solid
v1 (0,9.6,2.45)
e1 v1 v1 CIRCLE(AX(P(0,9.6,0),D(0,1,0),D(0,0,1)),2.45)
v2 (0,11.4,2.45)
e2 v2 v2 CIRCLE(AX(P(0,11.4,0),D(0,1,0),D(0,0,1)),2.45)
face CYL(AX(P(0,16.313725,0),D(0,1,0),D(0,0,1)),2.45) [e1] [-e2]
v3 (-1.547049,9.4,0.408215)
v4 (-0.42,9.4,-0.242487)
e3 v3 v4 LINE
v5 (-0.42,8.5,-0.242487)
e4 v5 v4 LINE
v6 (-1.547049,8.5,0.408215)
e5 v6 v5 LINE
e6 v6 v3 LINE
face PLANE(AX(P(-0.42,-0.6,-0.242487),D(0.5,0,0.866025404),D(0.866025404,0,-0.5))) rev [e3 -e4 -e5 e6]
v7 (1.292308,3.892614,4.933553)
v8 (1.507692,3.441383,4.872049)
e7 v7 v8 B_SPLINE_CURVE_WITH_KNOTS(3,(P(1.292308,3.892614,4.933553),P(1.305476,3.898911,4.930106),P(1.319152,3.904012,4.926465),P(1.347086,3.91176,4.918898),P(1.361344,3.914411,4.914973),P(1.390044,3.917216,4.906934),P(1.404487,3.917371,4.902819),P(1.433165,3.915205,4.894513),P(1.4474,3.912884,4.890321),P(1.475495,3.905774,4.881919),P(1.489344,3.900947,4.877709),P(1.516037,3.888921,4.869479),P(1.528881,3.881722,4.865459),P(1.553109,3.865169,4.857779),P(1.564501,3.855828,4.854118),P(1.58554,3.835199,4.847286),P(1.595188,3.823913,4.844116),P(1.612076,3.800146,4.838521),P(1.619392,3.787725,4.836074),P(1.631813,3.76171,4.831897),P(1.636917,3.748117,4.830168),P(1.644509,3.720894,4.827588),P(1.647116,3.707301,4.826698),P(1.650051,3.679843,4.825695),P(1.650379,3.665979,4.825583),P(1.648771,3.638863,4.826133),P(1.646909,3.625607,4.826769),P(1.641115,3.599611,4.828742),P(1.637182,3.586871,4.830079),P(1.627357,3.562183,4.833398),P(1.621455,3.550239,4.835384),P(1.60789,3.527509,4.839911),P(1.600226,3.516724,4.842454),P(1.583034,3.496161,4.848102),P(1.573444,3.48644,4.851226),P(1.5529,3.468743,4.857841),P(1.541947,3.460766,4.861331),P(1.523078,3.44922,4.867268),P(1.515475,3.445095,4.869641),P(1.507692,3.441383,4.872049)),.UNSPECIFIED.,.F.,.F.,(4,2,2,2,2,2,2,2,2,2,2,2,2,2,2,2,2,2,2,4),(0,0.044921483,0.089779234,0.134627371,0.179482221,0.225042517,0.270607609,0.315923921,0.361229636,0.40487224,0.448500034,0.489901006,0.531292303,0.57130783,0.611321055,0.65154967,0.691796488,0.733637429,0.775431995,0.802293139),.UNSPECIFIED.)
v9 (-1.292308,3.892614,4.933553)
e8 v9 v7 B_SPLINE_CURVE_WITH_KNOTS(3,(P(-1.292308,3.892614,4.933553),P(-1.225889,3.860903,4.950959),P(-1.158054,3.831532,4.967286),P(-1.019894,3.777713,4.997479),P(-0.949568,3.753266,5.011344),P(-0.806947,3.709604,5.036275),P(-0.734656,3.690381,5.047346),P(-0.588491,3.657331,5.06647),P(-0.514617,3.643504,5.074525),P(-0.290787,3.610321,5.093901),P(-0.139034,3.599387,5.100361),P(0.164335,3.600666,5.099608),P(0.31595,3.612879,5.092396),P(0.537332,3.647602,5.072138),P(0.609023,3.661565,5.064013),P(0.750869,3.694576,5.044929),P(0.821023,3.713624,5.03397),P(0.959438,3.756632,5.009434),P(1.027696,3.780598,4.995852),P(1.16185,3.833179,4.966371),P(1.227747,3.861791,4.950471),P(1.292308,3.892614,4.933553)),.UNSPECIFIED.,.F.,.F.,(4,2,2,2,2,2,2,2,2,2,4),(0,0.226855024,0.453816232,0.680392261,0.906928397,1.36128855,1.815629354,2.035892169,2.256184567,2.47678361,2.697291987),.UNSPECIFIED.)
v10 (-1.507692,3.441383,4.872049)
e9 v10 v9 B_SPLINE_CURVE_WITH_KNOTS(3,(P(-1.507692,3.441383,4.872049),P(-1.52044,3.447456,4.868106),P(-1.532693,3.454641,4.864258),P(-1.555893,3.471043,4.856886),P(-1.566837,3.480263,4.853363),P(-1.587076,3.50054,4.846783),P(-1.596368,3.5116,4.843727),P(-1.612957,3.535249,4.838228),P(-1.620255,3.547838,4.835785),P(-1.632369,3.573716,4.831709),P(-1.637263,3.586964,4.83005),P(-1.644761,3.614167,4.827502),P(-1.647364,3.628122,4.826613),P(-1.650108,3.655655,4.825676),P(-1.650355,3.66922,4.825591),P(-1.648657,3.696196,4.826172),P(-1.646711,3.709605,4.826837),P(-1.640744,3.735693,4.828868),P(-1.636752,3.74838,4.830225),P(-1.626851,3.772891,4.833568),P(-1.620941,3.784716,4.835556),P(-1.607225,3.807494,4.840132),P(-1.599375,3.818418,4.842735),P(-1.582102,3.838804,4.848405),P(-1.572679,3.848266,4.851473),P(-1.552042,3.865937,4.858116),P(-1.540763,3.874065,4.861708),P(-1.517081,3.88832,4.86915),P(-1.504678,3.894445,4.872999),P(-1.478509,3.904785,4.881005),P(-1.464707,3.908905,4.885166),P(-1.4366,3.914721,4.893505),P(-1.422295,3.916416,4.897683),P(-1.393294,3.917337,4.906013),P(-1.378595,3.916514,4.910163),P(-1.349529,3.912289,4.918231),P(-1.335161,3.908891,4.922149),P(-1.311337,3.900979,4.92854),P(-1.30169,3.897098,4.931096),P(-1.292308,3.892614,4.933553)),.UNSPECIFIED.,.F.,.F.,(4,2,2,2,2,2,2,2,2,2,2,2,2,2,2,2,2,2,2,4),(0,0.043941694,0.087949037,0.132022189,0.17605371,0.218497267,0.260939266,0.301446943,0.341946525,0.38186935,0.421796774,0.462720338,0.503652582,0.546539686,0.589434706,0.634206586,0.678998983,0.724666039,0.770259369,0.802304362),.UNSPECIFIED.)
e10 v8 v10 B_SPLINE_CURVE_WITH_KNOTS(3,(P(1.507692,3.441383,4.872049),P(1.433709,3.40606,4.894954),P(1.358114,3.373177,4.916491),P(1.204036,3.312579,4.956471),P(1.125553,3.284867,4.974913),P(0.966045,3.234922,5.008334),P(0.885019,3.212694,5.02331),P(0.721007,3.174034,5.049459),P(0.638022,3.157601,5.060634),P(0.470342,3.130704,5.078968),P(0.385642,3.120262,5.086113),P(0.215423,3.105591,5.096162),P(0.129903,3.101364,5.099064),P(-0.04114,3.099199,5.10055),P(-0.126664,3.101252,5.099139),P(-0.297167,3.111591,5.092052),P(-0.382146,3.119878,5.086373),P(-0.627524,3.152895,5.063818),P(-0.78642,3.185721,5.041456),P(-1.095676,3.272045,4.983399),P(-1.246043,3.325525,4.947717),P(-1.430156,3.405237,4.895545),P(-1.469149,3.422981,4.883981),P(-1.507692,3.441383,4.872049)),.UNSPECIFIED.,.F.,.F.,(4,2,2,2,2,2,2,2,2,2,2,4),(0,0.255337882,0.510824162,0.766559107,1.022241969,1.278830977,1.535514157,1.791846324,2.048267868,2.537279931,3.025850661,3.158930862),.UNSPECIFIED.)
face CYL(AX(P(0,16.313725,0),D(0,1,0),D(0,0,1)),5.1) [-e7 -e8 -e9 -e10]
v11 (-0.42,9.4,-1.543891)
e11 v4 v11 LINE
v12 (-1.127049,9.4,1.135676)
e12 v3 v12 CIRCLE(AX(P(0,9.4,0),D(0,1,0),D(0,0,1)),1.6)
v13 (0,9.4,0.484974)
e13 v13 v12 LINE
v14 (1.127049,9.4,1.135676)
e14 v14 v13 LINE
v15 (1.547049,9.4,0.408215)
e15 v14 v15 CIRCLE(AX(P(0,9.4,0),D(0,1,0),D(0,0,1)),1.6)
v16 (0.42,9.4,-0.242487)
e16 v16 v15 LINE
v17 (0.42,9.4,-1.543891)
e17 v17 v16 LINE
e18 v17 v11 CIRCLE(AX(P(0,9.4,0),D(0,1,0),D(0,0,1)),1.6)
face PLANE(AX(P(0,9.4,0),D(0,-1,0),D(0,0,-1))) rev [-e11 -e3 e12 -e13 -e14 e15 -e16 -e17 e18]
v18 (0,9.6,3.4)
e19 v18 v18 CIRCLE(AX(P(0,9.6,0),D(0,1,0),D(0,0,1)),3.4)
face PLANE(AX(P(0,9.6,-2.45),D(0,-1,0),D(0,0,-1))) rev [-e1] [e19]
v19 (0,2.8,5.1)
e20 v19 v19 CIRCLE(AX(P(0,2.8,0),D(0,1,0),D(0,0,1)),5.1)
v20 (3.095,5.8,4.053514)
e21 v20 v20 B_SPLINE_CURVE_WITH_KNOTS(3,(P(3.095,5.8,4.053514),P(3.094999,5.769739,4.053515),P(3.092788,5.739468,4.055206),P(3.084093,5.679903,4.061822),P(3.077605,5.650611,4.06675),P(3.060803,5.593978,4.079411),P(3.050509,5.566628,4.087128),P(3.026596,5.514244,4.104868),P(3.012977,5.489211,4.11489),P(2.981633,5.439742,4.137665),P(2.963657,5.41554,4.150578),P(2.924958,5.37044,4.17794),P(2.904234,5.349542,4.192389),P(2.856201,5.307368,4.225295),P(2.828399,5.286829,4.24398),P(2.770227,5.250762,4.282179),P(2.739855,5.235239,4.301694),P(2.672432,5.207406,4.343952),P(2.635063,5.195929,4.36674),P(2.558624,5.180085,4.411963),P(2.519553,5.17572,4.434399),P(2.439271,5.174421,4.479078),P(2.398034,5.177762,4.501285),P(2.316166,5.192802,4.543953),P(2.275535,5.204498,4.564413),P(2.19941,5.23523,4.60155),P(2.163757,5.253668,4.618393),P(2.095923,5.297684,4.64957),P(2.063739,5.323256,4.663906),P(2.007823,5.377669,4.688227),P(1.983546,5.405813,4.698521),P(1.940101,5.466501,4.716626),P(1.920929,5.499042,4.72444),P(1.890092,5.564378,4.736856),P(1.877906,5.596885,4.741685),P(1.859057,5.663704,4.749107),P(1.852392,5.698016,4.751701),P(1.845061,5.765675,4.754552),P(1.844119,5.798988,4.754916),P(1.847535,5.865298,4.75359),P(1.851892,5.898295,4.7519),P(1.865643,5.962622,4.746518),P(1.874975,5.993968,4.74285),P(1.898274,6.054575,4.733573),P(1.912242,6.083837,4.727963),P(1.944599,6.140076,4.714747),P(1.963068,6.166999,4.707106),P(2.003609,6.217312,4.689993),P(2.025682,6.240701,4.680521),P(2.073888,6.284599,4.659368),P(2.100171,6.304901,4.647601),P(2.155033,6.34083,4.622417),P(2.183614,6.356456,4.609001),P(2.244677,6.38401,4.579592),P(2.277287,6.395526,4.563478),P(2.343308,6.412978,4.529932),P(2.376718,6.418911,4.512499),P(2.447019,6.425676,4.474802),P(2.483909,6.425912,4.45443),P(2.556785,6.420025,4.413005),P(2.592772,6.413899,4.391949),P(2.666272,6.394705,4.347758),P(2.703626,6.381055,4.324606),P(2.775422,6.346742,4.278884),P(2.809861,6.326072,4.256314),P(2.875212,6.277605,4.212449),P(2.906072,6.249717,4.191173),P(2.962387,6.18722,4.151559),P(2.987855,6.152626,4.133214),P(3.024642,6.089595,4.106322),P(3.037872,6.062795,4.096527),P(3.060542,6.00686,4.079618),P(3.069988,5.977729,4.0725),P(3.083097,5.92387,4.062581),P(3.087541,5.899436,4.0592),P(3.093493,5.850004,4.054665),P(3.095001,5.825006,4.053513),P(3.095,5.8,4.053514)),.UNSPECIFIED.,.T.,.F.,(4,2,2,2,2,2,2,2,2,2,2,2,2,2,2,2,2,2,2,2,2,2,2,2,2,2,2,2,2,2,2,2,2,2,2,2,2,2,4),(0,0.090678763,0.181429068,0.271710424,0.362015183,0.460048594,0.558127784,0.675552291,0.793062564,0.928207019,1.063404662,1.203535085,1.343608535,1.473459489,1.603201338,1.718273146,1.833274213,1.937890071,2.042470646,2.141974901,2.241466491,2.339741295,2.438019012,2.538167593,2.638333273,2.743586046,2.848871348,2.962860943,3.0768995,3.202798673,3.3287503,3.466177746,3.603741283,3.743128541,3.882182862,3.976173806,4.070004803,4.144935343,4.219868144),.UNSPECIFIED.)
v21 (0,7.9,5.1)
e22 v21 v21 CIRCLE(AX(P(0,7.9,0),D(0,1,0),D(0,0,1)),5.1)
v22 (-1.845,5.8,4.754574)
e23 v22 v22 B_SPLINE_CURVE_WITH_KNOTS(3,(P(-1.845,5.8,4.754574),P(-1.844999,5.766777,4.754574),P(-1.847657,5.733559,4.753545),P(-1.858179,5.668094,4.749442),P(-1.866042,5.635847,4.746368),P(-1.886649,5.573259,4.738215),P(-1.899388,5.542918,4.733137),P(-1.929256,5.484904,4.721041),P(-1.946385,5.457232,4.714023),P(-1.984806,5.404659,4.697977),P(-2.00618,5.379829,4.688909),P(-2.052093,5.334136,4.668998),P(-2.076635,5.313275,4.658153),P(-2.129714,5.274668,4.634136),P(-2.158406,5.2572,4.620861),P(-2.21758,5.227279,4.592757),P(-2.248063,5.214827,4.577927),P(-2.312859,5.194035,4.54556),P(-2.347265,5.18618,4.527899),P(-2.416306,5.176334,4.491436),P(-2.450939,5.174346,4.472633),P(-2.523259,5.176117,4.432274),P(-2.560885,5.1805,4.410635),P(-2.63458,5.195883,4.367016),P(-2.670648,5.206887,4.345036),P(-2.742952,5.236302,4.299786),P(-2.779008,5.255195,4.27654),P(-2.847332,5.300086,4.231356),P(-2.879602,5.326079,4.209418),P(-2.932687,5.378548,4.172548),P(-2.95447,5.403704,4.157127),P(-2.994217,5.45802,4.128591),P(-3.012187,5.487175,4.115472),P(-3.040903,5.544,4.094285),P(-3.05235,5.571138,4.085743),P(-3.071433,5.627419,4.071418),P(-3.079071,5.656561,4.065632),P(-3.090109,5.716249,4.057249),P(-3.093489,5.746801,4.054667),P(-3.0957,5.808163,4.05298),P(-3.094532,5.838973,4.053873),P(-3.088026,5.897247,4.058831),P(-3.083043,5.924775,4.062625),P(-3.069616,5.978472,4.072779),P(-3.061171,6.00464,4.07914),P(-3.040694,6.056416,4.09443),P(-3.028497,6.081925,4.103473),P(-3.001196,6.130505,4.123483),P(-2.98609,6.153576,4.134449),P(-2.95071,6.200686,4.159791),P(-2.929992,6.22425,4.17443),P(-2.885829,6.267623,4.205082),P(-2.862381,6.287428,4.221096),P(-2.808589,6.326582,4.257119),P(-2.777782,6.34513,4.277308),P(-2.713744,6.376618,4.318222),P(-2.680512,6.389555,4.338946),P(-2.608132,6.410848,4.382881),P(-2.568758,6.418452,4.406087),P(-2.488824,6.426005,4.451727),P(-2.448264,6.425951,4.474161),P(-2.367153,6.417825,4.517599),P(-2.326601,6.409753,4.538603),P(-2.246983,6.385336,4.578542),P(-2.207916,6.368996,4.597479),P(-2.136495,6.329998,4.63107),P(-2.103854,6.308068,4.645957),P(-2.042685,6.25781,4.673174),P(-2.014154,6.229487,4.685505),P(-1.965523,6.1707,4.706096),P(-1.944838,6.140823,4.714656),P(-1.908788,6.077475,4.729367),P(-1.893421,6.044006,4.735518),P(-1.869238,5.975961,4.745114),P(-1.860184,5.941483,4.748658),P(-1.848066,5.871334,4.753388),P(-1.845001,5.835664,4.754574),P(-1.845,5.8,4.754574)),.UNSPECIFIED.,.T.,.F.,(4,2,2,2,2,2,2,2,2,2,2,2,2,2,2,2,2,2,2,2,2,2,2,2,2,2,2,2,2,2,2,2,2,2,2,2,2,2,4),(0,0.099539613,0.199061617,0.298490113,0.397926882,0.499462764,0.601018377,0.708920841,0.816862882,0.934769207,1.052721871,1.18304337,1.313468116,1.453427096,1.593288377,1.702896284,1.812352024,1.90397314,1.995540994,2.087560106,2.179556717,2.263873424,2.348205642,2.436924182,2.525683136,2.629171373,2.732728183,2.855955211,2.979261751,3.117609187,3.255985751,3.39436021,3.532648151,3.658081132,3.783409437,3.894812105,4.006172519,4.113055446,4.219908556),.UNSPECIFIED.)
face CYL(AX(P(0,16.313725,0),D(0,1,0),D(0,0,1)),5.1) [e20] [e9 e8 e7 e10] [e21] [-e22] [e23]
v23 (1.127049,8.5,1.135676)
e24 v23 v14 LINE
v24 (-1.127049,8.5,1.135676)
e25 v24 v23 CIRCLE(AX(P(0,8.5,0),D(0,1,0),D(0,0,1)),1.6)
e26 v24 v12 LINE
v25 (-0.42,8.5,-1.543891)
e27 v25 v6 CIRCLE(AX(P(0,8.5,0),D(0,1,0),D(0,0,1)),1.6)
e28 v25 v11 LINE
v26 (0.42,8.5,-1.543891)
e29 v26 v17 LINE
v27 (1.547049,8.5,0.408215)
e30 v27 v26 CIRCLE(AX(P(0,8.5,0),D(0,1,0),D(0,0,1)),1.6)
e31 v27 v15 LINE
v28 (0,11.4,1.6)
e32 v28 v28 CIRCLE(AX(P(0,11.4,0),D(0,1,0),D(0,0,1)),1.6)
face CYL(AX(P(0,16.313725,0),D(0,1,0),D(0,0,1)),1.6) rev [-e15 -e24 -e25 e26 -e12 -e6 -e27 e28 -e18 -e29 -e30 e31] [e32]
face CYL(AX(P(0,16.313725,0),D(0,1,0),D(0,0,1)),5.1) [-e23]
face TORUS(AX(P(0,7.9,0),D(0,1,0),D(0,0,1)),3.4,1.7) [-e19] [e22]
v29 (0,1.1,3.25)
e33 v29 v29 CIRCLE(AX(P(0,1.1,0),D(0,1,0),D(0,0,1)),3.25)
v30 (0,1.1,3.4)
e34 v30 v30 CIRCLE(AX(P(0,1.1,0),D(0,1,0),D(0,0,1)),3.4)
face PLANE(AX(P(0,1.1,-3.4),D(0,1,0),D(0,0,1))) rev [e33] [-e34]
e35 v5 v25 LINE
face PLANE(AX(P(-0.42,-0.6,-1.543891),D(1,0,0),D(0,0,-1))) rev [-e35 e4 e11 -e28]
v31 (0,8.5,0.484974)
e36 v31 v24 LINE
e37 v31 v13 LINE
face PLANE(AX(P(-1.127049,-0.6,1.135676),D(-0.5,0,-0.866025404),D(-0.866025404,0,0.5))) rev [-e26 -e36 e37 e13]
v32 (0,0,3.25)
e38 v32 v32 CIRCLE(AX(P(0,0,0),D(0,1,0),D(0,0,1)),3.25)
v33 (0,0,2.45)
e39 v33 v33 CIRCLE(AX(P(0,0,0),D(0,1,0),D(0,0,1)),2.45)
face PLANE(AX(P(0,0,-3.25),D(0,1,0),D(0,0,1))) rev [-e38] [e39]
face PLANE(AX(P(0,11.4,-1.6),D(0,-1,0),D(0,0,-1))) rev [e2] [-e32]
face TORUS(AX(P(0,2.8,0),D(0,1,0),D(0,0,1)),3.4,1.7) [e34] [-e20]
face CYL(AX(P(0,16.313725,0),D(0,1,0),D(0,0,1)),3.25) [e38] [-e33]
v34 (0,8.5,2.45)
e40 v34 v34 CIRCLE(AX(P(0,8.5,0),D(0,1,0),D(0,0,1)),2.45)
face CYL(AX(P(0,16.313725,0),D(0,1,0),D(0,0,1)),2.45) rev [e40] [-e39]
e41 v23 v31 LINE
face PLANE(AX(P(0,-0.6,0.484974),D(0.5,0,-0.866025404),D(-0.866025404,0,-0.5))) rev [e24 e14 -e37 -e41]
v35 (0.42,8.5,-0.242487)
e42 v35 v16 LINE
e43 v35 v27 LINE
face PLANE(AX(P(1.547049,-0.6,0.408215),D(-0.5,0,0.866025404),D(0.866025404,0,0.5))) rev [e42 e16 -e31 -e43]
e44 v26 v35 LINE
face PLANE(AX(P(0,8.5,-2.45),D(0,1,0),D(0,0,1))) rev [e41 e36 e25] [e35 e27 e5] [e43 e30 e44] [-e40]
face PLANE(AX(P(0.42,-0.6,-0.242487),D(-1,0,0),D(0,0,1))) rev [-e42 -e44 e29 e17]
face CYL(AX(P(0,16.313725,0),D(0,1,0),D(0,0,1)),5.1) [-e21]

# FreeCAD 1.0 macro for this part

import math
import FreeCAD as App
import Part
import Sketcher
Q = App.Units.Quantity

doc = App.newDocument("Part")
body = doc.addObject("PartDesign::Body", "Body")

sketch1 = doc.addObject("Sketcher::SketchObject", "Sketch")
body.addObject(sketch1)
sketch1.AttachmentSupport = (doc.YZ_Plane, [""])
sketch1.MapMode = "FlatFace"
sketch1.addGeometry([
    Part.LineSegment(App.Vector(9.4, 0, 0), App.Vector(8.5, 0, 0)),
    Part.LineSegment(App.Vector(8.5, 0, 0), App.Vector(8.5, -2.45, 0)),
    Part.LineSegment(App.Vector(8.5, -2.45, 0), App.Vector(0, -2.45, 0)),
    Part.LineSegment(App.Vector(0, -2.45, 0), App.Vector(0, -3.25, 0)),
    Part.LineSegment(App.Vector(0, -3.25, 0), App.Vector(1.1, -3.25, 0)),
    Part.LineSegment(App.Vector(1.1, -3.25, 0), App.Vector(1.1, -3.4, 0)),
    Part.ArcOfCircle(Part.Circle(App.Vector(2.8, -3.4, 0), App.Vector(0, 0, 1), 1.7), math.radians(180), math.radians(270)),
    Part.LineSegment(App.Vector(2.8, -5.1, 0), App.Vector(7.9, -5.1, 0)),
    Part.ArcOfCircle(Part.Circle(App.Vector(7.9, -3.4, 0), App.Vector(0, 0, 1), 1.7), math.radians(-90), math.radians(0)),
    Part.LineSegment(App.Vector(9.6, -3.4, 0), App.Vector(9.6, -2.45, 0)),
    Part.LineSegment(App.Vector(9.6, -2.45, 0), App.Vector(11.4, -2.45, 0)),
    Part.LineSegment(App.Vector(11.4, -2.45, 0), App.Vector(11.4, -1.6, 0)),
    Part.LineSegment(App.Vector(11.4, -1.6, 0), App.Vector(9.4, -1.6, 0)),
    Part.LineSegment(App.Vector(9.4, -1.6, 0), App.Vector(9.4, 0, 0)),
], False)
sketch1.addConstraint([
    Sketcher.Constraint("Coincident", 0, 2, 1, 1),
    Sketcher.Constraint("Coincident", 1, 2, 2, 1),
    Sketcher.Constraint("Coincident", 2, 2, 3, 1),
    Sketcher.Constraint("Coincident", 3, 2, 4, 1),
    Sketcher.Constraint("Coincident", 4, 2, 5, 1),
    Sketcher.Constraint("Tangent", 5, 2, 6, 1),
    Sketcher.Constraint("Tangent", 6, 2, 7, 1),
    Sketcher.Constraint("Tangent", 7, 2, 8, 1),
    Sketcher.Constraint("Tangent", 8, 2, 9, 1),
    Sketcher.Constraint("Coincident", 9, 2, 10, 1),
    Sketcher.Constraint("Coincident", 10, 2, 11, 1),
    Sketcher.Constraint("Coincident", 11, 2, 12, 1),
    Sketcher.Constraint("Coincident", 12, 2, 13, 1),
    Sketcher.Constraint("Coincident", 13, 2, 0, 1),
    Sketcher.Constraint("Horizontal", 0),
    Sketcher.Constraint("Vertical", 1),
    Sketcher.Constraint("Horizontal", 2),
    Sketcher.Constraint("Vertical", 3),
    Sketcher.Constraint("Horizontal", 4),
    Sketcher.Constraint("Vertical", 5),
    Sketcher.Constraint("Horizontal", 7),
    Sketcher.Constraint("Vertical", 9),
    Sketcher.Constraint("Horizontal", 10),
    Sketcher.Constraint("Vertical", 11),
    Sketcher.Constraint("Horizontal", 12),
    Sketcher.Constraint("Vertical", 13),
    Sketcher.Constraint("Equal", 6, 8),
    Sketcher.Constraint("PointOnObject", 0, 2, -1),
    Sketcher.Constraint("PointOnObject", 2, 2, -2),
    Sketcher.Constraint("Horizontal", 2, 2, 9, 2),
    Sketcher.Constraint("Radius", 6, Q("1.7 mm")),
    Sketcher.Constraint("DistanceX", 12, 2, 12, 1, Q("2 mm")),
    Sketcher.Constraint("DistanceX", 0, 2, 0, 1, Q("0.9 mm")),
    Sketcher.Constraint("DistanceX", 2, 2, 2, 1, Q("8.5 mm")),
    Sketcher.Constraint("DistanceX", 4, 1, 4, 2, Q("1.1 mm")),
    Sketcher.Constraint("DistanceX", 7, 1, 7, 2, Q("5.1 mm")),
    Sketcher.Constraint("DistanceY", 3, 2, 3, 1, Q("0.8 mm")),
    Sketcher.Constraint("DistanceY", 13, 1, 13, 2, Q("1.6 mm")),
    Sketcher.Constraint("DistanceY", 1, 2, 1, 1, Q("2.45 mm")),
    Sketcher.Constraint("DistanceY", 5, 2, 5, 1, Q("0.15 mm")),
])
revolution = doc.addObject("PartDesign::Revolution", "Revolution")
body.addObject(revolution)
revolution.Profile = sketch1
revolution.ReferenceAxis = (sketch1, ["H_Axis"])
revolution.Angle = 360

sketch2 = doc.addObject("Sketcher::SketchObject", "Sketch001")
body.addObject(sketch2)
sketch2.AttachmentSupport = (doc.XZ_Plane, [""])
sketch2.MapMode = "FlatFace"
sketch2.AttachmentOffset = App.Placement(App.Vector(0, 0, -9.4), App.Rotation())
sketch2.addGeometry([
    Part.LineSegment(App.Vector(-0.42, -0.242487, 0), App.Vector(-0.42, -1.543891, 0)),
    Part.ArcOfCircle(Part.Circle(App.Vector(0, 0, 0), App.Vector(0, 0, 1), 1.6), math.radians(165.218455), math.radians(254.781545)),
    Part.LineSegment(App.Vector(-1.547049, 0.408215, 0), App.Vector(-0.42, -0.242487, 0)),
], False)
sketch2.addConstraint([
    Sketcher.Constraint("Coincident", 0, 2, 1, 2),
    Sketcher.Constraint("Coincident", 1, 1, 2, 1),
    Sketcher.Constraint("Coincident", 2, 2, 0, 1),
    Sketcher.Constraint("Vertical", 0),
    Sketcher.Constraint("Coincident", 1, 3, -1, 1),
    Sketcher.Constraint("Radius", 1, Q("1.6 mm")),
    Sketcher.Constraint("Angle", 2, Q("-30 deg")),
    Sketcher.Constraint("DistanceX", 0, 2, -1, 1, Q("0.42 mm")),
    Sketcher.Constraint("DistanceY", 0, 2, 0, 1, Q("1.301404 mm")),
])
pocket1 = doc.addObject("PartDesign::Pocket", "Pocket")
body.addObject(pocket1)
pocket1.Profile = sketch2
pocket1.Length = 10
pocket1.Reversed = True
doc.recompute()

polarpattern = doc.addObject("PartDesign::PolarPattern", "PolarPattern")
body.addObject(polarpattern)
polarpattern.Originals = [pocket1]
polarpattern.Axis = (doc.Y_Axis, [""])
polarpattern.Angle = 360
polarpattern.Occurrences = 3
body.Tip = polarpattern

doc.recompute()
